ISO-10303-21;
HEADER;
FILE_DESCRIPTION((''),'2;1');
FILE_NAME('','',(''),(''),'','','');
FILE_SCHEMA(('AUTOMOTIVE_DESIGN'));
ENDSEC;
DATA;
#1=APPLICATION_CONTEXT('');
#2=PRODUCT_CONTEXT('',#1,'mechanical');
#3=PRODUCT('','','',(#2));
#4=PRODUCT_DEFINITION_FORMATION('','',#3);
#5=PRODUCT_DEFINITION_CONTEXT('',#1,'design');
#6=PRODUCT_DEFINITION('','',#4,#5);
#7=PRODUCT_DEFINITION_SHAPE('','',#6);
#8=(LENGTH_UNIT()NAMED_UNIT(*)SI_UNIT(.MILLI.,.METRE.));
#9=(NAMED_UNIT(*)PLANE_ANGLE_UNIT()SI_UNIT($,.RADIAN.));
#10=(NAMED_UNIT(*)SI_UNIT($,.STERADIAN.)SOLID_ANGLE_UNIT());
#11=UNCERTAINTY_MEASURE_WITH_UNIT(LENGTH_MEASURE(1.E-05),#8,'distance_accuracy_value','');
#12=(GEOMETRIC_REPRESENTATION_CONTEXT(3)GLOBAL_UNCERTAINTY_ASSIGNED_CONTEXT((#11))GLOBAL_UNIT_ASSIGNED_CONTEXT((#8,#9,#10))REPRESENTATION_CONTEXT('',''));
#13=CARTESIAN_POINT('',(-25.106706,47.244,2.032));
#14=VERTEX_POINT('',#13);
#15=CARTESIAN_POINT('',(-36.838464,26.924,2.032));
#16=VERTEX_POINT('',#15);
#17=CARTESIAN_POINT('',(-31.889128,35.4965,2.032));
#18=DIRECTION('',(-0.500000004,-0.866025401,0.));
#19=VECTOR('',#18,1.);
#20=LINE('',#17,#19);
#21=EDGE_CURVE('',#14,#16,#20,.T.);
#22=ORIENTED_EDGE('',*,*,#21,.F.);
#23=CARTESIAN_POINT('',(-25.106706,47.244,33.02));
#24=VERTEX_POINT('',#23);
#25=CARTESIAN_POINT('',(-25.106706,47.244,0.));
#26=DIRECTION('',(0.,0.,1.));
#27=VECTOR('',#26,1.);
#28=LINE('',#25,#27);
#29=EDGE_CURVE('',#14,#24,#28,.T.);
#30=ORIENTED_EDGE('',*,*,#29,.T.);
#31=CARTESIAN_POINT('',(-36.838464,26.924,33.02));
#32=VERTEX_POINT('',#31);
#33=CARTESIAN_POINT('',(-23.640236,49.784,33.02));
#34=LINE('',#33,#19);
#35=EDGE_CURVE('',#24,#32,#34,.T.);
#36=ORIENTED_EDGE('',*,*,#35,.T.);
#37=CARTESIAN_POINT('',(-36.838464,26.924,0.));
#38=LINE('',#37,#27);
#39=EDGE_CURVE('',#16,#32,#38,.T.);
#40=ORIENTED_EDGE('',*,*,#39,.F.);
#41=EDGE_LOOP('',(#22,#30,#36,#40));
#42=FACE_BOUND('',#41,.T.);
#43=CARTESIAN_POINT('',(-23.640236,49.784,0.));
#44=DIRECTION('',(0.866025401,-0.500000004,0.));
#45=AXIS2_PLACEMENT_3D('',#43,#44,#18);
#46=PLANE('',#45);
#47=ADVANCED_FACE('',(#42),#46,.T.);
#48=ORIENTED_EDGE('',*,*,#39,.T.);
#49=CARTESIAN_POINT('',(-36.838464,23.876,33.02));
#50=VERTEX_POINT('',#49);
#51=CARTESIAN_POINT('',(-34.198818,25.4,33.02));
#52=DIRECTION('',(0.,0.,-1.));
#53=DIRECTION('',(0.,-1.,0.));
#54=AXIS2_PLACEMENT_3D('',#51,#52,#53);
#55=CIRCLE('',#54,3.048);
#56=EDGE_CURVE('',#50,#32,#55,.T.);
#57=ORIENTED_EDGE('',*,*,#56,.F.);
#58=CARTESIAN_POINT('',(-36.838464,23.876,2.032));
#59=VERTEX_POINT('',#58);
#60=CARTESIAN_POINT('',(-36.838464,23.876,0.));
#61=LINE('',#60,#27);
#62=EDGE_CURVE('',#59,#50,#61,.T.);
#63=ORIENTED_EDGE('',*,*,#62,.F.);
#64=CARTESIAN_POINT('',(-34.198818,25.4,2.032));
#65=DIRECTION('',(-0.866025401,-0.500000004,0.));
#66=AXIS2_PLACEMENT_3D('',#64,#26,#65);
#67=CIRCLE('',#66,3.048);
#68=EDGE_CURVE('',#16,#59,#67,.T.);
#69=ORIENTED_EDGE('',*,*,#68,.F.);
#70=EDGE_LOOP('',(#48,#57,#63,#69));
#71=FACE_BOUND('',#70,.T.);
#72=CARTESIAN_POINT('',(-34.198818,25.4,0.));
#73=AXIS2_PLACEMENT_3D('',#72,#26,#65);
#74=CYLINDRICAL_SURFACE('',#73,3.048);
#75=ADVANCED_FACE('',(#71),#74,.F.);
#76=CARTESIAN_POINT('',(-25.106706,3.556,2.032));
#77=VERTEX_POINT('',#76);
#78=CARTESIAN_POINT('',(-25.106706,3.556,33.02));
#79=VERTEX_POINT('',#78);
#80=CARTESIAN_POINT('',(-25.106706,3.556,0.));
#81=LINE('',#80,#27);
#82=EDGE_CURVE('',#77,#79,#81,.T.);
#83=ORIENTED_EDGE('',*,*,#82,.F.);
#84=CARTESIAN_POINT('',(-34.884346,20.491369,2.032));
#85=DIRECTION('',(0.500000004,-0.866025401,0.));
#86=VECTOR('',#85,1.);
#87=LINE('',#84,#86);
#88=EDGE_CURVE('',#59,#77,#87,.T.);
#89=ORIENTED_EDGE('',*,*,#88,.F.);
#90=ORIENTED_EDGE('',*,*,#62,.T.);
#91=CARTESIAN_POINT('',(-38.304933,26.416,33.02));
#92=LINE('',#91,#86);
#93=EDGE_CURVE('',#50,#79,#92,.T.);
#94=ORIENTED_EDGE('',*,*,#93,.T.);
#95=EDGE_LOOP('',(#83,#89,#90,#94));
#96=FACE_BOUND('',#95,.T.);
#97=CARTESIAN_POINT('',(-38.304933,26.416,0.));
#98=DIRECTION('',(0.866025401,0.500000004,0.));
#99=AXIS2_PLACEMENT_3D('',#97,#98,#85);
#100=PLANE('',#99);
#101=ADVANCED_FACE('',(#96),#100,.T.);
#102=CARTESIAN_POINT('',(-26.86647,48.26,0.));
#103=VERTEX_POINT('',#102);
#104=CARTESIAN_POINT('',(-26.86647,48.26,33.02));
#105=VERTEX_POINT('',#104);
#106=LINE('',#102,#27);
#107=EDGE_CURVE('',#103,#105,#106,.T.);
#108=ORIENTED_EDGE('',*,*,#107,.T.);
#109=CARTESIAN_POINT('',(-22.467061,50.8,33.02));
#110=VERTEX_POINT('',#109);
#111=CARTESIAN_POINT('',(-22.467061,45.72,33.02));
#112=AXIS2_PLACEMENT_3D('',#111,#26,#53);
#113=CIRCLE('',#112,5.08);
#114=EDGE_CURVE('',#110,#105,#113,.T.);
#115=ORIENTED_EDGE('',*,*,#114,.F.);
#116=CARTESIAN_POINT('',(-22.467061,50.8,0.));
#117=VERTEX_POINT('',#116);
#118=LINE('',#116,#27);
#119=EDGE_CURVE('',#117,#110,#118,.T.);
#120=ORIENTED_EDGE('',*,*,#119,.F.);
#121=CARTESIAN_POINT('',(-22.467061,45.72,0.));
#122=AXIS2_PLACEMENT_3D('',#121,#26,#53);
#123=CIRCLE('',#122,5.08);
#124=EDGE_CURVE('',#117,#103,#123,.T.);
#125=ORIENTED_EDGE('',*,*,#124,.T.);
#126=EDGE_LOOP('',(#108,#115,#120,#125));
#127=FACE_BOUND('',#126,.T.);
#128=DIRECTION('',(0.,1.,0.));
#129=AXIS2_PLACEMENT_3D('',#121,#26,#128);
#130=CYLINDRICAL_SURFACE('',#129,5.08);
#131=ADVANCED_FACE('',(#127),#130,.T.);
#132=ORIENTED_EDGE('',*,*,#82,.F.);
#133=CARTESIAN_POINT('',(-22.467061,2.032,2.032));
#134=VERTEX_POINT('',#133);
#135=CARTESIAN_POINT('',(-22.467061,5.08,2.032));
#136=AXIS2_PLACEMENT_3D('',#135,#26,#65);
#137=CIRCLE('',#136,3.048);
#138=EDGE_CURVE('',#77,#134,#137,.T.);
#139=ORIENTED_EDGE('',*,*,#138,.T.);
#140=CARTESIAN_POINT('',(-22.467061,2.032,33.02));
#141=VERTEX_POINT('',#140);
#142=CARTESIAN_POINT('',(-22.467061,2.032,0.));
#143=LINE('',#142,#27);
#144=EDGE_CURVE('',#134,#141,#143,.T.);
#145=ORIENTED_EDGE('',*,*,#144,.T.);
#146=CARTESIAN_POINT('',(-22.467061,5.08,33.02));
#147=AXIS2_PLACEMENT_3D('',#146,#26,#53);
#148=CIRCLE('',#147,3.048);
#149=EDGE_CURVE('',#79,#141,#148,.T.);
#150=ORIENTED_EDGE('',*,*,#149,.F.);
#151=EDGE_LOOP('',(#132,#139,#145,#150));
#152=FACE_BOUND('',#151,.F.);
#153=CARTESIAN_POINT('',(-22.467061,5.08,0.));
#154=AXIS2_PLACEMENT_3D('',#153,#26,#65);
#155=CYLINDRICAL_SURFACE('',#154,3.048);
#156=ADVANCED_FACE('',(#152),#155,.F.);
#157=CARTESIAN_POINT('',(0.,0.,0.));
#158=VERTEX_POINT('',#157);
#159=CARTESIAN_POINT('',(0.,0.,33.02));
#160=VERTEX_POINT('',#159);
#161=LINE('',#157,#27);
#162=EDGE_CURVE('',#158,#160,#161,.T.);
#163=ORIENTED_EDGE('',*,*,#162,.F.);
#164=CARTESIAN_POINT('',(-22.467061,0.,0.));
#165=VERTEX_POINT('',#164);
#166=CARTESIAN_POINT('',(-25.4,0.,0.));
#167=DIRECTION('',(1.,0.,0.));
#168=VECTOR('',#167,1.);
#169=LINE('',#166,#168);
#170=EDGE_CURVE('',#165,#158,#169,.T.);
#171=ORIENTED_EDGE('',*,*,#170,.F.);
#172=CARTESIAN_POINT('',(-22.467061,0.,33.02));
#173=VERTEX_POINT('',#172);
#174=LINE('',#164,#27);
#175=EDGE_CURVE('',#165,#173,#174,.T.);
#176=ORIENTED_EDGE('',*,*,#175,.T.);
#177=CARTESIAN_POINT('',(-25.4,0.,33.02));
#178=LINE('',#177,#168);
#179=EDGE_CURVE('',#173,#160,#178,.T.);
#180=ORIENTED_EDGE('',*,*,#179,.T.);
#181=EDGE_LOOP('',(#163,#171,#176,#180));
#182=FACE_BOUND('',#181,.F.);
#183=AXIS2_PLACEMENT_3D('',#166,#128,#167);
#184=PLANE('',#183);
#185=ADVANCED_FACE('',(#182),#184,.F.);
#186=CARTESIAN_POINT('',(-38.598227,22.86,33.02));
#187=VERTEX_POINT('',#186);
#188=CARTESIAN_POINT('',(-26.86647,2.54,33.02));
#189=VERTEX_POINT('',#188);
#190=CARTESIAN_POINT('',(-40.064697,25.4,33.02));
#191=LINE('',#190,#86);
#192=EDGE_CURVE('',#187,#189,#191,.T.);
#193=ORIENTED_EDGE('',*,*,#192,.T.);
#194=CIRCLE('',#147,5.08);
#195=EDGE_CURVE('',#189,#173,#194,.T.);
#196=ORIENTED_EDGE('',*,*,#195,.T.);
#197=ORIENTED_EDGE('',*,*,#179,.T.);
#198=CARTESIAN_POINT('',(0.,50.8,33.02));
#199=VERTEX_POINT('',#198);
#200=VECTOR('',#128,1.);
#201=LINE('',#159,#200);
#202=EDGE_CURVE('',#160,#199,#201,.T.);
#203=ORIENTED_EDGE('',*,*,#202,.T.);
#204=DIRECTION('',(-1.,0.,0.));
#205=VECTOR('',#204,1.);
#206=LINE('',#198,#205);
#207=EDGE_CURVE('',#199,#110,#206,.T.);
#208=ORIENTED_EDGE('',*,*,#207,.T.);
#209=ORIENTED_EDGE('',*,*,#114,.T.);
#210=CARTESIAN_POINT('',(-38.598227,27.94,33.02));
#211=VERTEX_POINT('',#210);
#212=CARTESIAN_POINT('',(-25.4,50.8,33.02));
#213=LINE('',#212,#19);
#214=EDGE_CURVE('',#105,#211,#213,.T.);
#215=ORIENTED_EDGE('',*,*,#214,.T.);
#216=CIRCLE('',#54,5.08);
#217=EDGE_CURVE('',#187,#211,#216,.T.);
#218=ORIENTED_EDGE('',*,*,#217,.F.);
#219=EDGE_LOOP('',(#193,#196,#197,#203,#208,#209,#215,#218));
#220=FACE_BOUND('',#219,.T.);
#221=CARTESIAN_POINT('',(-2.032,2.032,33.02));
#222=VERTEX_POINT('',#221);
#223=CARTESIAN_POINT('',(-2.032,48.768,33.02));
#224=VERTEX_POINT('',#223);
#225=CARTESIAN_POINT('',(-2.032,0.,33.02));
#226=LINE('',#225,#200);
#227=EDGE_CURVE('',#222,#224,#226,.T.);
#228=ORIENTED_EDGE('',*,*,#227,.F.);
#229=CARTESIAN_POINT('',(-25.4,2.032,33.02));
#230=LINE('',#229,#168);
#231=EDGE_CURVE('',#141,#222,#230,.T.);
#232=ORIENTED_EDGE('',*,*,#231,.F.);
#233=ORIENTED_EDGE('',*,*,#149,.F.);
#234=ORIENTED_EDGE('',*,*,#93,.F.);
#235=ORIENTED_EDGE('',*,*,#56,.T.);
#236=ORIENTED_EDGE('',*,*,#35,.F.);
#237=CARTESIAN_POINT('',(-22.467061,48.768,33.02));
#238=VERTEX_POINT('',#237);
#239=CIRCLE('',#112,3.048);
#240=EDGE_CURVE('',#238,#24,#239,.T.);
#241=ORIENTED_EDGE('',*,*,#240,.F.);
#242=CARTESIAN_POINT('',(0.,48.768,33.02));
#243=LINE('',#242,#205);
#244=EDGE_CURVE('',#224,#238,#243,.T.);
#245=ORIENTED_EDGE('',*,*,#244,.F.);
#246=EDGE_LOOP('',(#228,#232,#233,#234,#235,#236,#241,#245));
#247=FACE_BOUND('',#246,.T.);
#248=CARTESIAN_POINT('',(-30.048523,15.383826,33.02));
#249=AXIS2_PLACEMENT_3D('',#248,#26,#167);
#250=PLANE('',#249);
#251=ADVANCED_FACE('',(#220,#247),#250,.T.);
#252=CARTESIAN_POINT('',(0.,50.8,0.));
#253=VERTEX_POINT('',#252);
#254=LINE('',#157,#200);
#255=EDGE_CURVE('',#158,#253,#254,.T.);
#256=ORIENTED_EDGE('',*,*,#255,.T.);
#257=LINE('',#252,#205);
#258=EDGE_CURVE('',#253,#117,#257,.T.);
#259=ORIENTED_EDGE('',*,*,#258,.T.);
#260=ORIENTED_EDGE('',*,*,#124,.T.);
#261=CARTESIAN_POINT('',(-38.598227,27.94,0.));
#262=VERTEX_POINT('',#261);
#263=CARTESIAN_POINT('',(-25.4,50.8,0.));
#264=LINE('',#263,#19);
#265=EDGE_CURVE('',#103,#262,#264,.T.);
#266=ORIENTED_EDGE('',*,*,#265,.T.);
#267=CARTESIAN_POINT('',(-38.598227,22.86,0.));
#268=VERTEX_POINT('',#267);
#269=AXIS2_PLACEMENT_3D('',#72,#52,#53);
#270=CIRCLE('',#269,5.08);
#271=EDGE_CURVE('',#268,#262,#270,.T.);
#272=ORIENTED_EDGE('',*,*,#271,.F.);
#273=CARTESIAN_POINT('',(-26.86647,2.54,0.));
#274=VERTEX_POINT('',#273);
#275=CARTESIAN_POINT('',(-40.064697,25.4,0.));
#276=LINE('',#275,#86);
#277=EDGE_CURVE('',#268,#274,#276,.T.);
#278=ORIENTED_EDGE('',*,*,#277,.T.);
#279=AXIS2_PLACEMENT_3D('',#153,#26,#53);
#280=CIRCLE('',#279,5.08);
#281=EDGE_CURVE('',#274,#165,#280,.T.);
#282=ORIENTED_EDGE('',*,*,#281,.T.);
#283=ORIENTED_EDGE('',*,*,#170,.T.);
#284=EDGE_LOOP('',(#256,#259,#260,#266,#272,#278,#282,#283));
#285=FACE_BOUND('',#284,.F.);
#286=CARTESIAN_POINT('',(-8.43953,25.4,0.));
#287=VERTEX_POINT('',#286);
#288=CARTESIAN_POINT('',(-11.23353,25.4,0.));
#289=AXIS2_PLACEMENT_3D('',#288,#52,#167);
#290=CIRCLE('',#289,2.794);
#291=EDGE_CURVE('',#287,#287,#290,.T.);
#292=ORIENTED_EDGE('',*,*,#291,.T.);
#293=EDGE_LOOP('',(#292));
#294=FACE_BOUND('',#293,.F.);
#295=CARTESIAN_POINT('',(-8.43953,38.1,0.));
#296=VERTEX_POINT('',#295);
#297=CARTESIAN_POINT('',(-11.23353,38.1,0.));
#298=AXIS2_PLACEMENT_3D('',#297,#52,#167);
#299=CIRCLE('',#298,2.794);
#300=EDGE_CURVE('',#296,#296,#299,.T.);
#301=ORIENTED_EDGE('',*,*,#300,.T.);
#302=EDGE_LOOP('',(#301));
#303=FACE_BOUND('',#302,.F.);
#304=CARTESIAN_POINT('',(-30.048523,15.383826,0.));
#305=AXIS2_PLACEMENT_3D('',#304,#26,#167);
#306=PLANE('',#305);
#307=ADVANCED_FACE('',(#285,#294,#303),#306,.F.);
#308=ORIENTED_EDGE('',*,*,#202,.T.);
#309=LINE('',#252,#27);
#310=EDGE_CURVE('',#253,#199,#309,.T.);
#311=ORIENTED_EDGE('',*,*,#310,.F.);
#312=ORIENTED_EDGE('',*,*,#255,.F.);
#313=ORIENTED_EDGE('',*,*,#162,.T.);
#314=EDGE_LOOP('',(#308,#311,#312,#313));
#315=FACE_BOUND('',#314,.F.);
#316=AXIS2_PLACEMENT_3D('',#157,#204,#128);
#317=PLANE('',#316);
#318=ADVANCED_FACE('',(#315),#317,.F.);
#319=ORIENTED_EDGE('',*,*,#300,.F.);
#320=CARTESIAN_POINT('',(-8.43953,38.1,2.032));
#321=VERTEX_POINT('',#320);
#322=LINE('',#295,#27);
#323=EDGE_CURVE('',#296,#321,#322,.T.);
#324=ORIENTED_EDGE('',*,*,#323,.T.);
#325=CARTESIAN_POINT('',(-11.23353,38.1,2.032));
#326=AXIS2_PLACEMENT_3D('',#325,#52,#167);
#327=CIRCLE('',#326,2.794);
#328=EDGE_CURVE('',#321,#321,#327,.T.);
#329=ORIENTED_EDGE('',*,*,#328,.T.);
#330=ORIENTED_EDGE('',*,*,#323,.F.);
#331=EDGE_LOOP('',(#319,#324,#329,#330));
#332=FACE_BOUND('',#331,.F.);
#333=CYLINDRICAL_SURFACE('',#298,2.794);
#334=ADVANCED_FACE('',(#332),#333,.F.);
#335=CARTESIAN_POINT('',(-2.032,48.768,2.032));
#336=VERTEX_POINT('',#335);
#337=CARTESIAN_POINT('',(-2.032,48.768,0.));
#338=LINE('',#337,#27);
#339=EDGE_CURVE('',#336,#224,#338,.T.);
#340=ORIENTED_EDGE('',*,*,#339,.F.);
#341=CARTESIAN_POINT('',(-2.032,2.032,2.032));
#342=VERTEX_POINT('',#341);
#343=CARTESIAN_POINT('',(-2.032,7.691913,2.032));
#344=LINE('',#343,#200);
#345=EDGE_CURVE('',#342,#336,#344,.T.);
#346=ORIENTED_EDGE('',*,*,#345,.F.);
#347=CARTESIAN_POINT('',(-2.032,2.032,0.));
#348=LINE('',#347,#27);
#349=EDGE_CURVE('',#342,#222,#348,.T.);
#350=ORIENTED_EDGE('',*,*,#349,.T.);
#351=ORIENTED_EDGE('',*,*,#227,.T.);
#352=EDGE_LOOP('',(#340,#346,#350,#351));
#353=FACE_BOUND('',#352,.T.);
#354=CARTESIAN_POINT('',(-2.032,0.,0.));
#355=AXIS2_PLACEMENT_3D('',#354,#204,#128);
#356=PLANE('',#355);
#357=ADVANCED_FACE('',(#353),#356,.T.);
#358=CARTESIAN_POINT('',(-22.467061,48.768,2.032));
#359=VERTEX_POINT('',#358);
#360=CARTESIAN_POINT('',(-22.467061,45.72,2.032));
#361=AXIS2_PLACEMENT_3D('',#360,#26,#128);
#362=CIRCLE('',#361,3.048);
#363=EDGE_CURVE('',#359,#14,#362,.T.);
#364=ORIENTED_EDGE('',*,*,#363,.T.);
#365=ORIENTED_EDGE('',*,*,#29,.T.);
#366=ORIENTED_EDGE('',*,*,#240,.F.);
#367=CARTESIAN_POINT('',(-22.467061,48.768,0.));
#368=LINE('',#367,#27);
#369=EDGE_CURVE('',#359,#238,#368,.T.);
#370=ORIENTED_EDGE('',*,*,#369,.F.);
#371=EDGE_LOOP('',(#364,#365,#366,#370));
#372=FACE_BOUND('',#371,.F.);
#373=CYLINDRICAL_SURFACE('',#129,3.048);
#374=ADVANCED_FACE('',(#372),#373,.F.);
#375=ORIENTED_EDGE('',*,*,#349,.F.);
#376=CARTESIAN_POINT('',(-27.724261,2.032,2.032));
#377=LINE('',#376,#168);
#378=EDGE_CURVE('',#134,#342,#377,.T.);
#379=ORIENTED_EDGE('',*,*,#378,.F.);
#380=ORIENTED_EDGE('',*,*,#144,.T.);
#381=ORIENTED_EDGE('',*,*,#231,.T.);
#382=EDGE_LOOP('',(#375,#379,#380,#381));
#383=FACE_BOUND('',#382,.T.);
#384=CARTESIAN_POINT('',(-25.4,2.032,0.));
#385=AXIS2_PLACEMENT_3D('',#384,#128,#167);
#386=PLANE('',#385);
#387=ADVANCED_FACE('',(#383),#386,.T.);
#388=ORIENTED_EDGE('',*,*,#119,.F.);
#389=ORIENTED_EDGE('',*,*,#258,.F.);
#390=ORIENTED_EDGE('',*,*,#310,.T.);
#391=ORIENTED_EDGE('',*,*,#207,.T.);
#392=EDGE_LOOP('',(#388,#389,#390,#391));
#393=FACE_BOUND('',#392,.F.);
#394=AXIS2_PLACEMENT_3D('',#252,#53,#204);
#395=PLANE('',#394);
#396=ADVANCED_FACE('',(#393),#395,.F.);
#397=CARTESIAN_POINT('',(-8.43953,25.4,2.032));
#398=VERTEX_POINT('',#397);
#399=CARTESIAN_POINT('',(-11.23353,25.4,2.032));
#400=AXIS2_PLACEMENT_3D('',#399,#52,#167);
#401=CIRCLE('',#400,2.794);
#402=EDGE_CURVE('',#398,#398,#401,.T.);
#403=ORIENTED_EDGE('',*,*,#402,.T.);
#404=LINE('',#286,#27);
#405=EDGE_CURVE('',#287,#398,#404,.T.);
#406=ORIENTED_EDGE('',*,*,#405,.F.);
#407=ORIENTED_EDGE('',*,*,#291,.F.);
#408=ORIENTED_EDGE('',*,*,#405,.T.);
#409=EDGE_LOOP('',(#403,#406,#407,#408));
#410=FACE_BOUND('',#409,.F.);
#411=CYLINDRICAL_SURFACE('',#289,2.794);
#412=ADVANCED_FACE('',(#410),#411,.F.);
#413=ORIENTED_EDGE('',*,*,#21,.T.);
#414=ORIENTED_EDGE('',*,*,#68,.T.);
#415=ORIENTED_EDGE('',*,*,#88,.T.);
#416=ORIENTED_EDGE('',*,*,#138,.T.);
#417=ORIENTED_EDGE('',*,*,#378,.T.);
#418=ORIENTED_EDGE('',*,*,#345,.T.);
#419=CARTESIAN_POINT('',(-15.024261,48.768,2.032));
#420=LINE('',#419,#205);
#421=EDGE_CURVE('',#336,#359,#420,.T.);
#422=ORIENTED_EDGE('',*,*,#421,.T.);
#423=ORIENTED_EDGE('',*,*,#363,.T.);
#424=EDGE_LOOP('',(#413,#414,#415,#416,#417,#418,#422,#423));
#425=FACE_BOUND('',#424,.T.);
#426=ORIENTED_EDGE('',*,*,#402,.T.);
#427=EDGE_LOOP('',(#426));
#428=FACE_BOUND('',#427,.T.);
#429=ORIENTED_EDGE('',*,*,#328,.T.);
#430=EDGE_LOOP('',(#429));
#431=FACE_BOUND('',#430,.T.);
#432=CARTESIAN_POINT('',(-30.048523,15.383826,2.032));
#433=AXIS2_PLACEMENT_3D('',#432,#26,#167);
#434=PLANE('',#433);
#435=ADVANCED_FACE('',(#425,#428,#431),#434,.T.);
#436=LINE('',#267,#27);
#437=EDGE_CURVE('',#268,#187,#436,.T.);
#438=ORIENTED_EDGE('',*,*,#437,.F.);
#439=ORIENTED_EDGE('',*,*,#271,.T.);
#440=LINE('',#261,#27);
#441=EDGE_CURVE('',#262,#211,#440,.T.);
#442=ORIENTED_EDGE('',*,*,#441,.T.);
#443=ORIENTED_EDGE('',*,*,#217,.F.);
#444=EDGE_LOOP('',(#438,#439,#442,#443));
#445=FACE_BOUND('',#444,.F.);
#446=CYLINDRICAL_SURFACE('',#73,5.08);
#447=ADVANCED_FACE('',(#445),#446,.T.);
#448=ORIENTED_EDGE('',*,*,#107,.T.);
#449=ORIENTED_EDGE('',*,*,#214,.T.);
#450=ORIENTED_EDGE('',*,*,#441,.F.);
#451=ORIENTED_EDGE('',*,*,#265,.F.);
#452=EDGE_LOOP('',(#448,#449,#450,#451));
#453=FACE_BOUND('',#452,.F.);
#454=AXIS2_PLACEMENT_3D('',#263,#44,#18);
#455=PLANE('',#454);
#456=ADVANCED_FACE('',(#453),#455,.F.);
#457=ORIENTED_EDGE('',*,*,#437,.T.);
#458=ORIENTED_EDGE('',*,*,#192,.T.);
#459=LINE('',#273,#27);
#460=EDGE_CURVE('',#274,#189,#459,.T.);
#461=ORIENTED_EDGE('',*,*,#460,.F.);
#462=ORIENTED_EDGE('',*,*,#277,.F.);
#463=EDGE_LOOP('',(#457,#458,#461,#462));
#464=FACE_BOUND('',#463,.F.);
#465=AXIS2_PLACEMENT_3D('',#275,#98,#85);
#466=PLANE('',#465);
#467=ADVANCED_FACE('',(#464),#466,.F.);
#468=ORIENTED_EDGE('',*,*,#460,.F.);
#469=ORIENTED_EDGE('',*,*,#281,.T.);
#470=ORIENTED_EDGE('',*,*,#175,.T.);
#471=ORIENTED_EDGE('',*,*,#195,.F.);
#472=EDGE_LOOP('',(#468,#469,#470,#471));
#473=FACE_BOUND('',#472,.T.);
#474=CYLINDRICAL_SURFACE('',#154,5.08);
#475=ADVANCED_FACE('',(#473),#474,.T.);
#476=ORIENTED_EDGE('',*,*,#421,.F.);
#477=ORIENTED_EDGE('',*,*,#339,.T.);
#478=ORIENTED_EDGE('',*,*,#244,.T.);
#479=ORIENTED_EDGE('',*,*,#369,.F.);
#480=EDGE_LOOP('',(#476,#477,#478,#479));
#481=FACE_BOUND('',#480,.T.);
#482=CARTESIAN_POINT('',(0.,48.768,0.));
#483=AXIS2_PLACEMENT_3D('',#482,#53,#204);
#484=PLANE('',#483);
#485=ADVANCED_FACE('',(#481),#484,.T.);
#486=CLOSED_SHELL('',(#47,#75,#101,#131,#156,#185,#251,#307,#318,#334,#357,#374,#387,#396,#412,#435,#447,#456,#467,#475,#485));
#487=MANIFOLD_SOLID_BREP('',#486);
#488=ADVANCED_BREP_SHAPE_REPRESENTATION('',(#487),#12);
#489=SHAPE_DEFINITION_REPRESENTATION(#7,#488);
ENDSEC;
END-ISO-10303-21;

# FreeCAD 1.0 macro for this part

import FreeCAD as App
import Part
import Sketcher
from FreeCAD import Vector
Q = App.Units.Quantity


def edges_at(feature, points):
    """Names of the edges that pass closest to the given points."""
    edges = feature.Shape.Edges
    near = lambda p: min(range(len(edges)), key=lambda i: edges[i].distToShape(Part.Vertex(*p))[0])
    return sorted({f"Edge{near(p) + 1}" for p in points})


def faces_at(feature, points):
    """Names of the faces that lie closest to the given points."""
    faces = feature.Shape.Faces
    near = lambda p: min(range(len(faces)), key=lambda i: faces[i].distToShape(Part.Vertex(*p))[0])
    return sorted({f"Face{near(p) + 1}" for p in points})


def add_polygon(sketch, points):
    """Adds a closed chain of lines whose ends are joined by coincident constraints."""
    first, n = sketch.GeometryCount, len(points)
    for a, b in zip(points, points[1:] + points[:1]):
        sketch.addGeometry(Part.LineSegment(App.Vector(*a, 0), App.Vector(*b, 0)), False)
    for i in range(n):
        sketch.addConstraint(Sketcher.Constraint("Coincident", first + i, 2, first + (i + 1) % n, 1))

doc = App.newDocument("Part")
body = doc.addObject("PartDesign::Body", "Body")

sketch1 = body.newObject("Sketcher::SketchObject", "Sketch")
sketch1.AttachmentSupport = (doc.getObject("XY_Plane"), [""])
sketch1.MapMode = "FlatFace"
add_polygon(sketch1, [(-40, 25), (-25, 0), (0, 0), (0, 51), (-25, 51)])
sketch1.addConstraint([
    Sketcher.Constraint("Horizontal", 1),
    Sketcher.Constraint("Vertical", 2),
    Sketcher.Constraint("Horizontal", 3),
    Sketcher.Constraint("Coincident", 1, 2, -1, 1),
    Sketcher.Constraint("Vertical", 0, 2, 3, 2),
    Sketcher.Constraint("Equal", 0, 4),
    Sketcher.Constraint("DistanceX", 1, 1, 1, 2, Q("1 in")),
    Sketcher.Constraint("DistanceY", 2, 1, 2, 2, Q("2 in")),
    Sketcher.Constraint("Angle", 0, Q("-60 deg")),
])
pad1 = body.newObject("PartDesign::Pad", "Pad")
pad1.Profile = sketch1
pad1.Length = Q("1.3 in")
doc.recompute()

fillet = body.newObject("PartDesign::Fillet", "Fillet")
fillet.Base = (pad1, edges_at(pad1, [(-40.065, 25.4, 16.51), (-25.4, 50.8, 16.51), (-25.4, 0, 16.51)]))
fillet.Radius = Q("0.2 in")
doc.recompute()

thickness = body.newObject("PartDesign::Thickness", "Thickness")
thickness.Base = (fillet, faces_at(fillet, [(-19.639, 25.4, 33.02)]))
thickness.Value = Q("0.08 in")
thickness.Reversed = True
thickness.Join = "Arc"

sketch2 = body.newObject("Sketcher::SketchObject", "Sketch001")
sketch2.AttachmentSupport = (doc.getObject("XY_Plane"), [""])
sketch2.MapMode = "FlatFace"
sketch2.addGeometry([
    Part.Circle(Vector(-11.2, 25.4, 0), Vector(0, 0, 1), 2.8),
    Part.Circle(Vector(-11.2, 38.1, 0), Vector(0, 0, 1), 2.8),
], False)
sketch2.addConstraint([
    Sketcher.Constraint("Equal", 0, 1),
    Sketcher.Constraint("Vertical", 0, 3, 1, 3),
    Sketcher.Constraint("Diameter", 0, Q("0.22 in")),
    Sketcher.Constraint("DistanceY", -1, 1, 0, 3, Q("1 in")),
    Sketcher.Constraint("DistanceY", -1, 1, 1, 3, Q("1.5 in")),
    Sketcher.Constraint("DistanceX", 0, 3, -1, 1, 11.23353),
])
pocket1 = body.newObject("PartDesign::Pocket", "Pocket")
pocket1.Profile = sketch2
pocket1.Length = Q("0.08 in")
pocket1.Reversed = True

doc.recompute()
